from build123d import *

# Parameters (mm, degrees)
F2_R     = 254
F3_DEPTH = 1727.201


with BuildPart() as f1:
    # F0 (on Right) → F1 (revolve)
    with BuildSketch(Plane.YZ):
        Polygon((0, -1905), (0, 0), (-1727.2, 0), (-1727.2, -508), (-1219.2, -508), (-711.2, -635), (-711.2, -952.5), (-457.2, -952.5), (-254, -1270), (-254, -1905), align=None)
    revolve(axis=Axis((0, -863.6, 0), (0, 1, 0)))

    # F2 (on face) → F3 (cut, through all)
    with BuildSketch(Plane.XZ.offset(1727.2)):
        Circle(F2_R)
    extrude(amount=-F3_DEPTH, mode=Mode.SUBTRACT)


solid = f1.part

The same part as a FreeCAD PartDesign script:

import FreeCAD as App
import Part
import Sketcher

V = App.Vector
Q = App.Units.Quantity


def add_polygon(sketch, points):
    """Adds a closed chain of lines whose ends are joined by coincident constraints."""
    first, n = sketch.GeometryCount, len(points)
    for a, b in zip(points, points[1:] + points[:1]):
        sketch.addGeometry(Part.LineSegment(App.Vector(*a, 0), App.Vector(*b, 0)), False)
    for i in range(n):
        sketch.addConstraint(Sketcher.Constraint("Coincident", first + i, 2, first + (i + 1) % n, 1))

doc = App.newDocument("Part")
body = doc.addObject("PartDesign::Body", "Body")

sketch1 = body.newObject("Sketcher::SketchObject", "Sketch")
sketch1.AttachmentSupport = (doc.getObject("YZ_Plane"), [""])
sketch1.MapMode = "FlatFace"
add_polygon(sketch1, [(0, -1905), (0, 0), (-1727, 0), (-1727, -508), (-1219, -508), (-711, -635), (-711, -952), (-457, -952), (-254, -1270), (-254, -1905)])
sketch1.addConstraint([
    Sketcher.Constraint("Vertical", 0),
    Sketcher.Constraint("Horizontal", 1),
    Sketcher.Constraint("Vertical", 2),
    Sketcher.Constraint("Horizontal", 3),
    Sketcher.Constraint("Vertical", 5),
    Sketcher.Constraint("Horizontal", 6),
    Sketcher.Constraint("Vertical", 8),
    Sketcher.Constraint("Horizontal", 9),
    Sketcher.Constraint("Coincident", 0, 2, -1, 1),
    Sketcher.Constraint("Equal", 6, 9),
    Sketcher.Constraint("Equal", 3, 2),
    Sketcher.Constraint("DistanceX", 1, 2, 1, 1, Q("68 in")),
    Sketcher.Constraint("DistanceX", 3, 1, 3, 2, Q("20 in")),
    Sketcher.Constraint("DistanceX", 6, 1, 6, 2, Q("10 in")),
    Sketcher.Constraint("DistanceY", 0, 1, 0, 2, Q("75 in")),
    Sketcher.Constraint("DistanceY", 8, 2, 8, 1, Q("25 in")),
    Sketcher.Constraint("DistanceY", 5, 2, 5, 1, Q("12.5 in")),
    Sketcher.Constraint("DistanceX", 4, 2, -1, 1, Q("28 in")),
    Sketcher.Constraint("DistanceY", 4, 2, -1, 1, Q("25 in")),
])
revolution = body.newObject("PartDesign::Revolution", "Revolution")
revolution.Profile = sketch1
revolution.ReferenceAxis = (sketch1, ["H_Axis"])
revolution.Angle = 360

sketch2 = body.newObject("Sketcher::SketchObject", "Sketch001")
sketch2.AttachmentSupport = (doc.getObject("XZ_Plane"), [""])
sketch2.MapMode = "FlatFace"
sketch2.AttachmentOffset = App.Placement(V(0, 0, 68 * 25.4), App.Rotation())
sketch2.addGeometry(Part.Circle(V(0, 0, 0), V(0, 0, 1), 254), False)
sketch2.addConstraint([
    Sketcher.Constraint("Coincident", 0, 3, -1, 1),
    Sketcher.Constraint("Diameter", 0, Q("20 in")),
])
pocket1 = body.newObject("PartDesign::Pocket", "Pocket")
pocket1.Profile = sketch2
pocket1.Type = "ThroughAll"

doc.recompute()
